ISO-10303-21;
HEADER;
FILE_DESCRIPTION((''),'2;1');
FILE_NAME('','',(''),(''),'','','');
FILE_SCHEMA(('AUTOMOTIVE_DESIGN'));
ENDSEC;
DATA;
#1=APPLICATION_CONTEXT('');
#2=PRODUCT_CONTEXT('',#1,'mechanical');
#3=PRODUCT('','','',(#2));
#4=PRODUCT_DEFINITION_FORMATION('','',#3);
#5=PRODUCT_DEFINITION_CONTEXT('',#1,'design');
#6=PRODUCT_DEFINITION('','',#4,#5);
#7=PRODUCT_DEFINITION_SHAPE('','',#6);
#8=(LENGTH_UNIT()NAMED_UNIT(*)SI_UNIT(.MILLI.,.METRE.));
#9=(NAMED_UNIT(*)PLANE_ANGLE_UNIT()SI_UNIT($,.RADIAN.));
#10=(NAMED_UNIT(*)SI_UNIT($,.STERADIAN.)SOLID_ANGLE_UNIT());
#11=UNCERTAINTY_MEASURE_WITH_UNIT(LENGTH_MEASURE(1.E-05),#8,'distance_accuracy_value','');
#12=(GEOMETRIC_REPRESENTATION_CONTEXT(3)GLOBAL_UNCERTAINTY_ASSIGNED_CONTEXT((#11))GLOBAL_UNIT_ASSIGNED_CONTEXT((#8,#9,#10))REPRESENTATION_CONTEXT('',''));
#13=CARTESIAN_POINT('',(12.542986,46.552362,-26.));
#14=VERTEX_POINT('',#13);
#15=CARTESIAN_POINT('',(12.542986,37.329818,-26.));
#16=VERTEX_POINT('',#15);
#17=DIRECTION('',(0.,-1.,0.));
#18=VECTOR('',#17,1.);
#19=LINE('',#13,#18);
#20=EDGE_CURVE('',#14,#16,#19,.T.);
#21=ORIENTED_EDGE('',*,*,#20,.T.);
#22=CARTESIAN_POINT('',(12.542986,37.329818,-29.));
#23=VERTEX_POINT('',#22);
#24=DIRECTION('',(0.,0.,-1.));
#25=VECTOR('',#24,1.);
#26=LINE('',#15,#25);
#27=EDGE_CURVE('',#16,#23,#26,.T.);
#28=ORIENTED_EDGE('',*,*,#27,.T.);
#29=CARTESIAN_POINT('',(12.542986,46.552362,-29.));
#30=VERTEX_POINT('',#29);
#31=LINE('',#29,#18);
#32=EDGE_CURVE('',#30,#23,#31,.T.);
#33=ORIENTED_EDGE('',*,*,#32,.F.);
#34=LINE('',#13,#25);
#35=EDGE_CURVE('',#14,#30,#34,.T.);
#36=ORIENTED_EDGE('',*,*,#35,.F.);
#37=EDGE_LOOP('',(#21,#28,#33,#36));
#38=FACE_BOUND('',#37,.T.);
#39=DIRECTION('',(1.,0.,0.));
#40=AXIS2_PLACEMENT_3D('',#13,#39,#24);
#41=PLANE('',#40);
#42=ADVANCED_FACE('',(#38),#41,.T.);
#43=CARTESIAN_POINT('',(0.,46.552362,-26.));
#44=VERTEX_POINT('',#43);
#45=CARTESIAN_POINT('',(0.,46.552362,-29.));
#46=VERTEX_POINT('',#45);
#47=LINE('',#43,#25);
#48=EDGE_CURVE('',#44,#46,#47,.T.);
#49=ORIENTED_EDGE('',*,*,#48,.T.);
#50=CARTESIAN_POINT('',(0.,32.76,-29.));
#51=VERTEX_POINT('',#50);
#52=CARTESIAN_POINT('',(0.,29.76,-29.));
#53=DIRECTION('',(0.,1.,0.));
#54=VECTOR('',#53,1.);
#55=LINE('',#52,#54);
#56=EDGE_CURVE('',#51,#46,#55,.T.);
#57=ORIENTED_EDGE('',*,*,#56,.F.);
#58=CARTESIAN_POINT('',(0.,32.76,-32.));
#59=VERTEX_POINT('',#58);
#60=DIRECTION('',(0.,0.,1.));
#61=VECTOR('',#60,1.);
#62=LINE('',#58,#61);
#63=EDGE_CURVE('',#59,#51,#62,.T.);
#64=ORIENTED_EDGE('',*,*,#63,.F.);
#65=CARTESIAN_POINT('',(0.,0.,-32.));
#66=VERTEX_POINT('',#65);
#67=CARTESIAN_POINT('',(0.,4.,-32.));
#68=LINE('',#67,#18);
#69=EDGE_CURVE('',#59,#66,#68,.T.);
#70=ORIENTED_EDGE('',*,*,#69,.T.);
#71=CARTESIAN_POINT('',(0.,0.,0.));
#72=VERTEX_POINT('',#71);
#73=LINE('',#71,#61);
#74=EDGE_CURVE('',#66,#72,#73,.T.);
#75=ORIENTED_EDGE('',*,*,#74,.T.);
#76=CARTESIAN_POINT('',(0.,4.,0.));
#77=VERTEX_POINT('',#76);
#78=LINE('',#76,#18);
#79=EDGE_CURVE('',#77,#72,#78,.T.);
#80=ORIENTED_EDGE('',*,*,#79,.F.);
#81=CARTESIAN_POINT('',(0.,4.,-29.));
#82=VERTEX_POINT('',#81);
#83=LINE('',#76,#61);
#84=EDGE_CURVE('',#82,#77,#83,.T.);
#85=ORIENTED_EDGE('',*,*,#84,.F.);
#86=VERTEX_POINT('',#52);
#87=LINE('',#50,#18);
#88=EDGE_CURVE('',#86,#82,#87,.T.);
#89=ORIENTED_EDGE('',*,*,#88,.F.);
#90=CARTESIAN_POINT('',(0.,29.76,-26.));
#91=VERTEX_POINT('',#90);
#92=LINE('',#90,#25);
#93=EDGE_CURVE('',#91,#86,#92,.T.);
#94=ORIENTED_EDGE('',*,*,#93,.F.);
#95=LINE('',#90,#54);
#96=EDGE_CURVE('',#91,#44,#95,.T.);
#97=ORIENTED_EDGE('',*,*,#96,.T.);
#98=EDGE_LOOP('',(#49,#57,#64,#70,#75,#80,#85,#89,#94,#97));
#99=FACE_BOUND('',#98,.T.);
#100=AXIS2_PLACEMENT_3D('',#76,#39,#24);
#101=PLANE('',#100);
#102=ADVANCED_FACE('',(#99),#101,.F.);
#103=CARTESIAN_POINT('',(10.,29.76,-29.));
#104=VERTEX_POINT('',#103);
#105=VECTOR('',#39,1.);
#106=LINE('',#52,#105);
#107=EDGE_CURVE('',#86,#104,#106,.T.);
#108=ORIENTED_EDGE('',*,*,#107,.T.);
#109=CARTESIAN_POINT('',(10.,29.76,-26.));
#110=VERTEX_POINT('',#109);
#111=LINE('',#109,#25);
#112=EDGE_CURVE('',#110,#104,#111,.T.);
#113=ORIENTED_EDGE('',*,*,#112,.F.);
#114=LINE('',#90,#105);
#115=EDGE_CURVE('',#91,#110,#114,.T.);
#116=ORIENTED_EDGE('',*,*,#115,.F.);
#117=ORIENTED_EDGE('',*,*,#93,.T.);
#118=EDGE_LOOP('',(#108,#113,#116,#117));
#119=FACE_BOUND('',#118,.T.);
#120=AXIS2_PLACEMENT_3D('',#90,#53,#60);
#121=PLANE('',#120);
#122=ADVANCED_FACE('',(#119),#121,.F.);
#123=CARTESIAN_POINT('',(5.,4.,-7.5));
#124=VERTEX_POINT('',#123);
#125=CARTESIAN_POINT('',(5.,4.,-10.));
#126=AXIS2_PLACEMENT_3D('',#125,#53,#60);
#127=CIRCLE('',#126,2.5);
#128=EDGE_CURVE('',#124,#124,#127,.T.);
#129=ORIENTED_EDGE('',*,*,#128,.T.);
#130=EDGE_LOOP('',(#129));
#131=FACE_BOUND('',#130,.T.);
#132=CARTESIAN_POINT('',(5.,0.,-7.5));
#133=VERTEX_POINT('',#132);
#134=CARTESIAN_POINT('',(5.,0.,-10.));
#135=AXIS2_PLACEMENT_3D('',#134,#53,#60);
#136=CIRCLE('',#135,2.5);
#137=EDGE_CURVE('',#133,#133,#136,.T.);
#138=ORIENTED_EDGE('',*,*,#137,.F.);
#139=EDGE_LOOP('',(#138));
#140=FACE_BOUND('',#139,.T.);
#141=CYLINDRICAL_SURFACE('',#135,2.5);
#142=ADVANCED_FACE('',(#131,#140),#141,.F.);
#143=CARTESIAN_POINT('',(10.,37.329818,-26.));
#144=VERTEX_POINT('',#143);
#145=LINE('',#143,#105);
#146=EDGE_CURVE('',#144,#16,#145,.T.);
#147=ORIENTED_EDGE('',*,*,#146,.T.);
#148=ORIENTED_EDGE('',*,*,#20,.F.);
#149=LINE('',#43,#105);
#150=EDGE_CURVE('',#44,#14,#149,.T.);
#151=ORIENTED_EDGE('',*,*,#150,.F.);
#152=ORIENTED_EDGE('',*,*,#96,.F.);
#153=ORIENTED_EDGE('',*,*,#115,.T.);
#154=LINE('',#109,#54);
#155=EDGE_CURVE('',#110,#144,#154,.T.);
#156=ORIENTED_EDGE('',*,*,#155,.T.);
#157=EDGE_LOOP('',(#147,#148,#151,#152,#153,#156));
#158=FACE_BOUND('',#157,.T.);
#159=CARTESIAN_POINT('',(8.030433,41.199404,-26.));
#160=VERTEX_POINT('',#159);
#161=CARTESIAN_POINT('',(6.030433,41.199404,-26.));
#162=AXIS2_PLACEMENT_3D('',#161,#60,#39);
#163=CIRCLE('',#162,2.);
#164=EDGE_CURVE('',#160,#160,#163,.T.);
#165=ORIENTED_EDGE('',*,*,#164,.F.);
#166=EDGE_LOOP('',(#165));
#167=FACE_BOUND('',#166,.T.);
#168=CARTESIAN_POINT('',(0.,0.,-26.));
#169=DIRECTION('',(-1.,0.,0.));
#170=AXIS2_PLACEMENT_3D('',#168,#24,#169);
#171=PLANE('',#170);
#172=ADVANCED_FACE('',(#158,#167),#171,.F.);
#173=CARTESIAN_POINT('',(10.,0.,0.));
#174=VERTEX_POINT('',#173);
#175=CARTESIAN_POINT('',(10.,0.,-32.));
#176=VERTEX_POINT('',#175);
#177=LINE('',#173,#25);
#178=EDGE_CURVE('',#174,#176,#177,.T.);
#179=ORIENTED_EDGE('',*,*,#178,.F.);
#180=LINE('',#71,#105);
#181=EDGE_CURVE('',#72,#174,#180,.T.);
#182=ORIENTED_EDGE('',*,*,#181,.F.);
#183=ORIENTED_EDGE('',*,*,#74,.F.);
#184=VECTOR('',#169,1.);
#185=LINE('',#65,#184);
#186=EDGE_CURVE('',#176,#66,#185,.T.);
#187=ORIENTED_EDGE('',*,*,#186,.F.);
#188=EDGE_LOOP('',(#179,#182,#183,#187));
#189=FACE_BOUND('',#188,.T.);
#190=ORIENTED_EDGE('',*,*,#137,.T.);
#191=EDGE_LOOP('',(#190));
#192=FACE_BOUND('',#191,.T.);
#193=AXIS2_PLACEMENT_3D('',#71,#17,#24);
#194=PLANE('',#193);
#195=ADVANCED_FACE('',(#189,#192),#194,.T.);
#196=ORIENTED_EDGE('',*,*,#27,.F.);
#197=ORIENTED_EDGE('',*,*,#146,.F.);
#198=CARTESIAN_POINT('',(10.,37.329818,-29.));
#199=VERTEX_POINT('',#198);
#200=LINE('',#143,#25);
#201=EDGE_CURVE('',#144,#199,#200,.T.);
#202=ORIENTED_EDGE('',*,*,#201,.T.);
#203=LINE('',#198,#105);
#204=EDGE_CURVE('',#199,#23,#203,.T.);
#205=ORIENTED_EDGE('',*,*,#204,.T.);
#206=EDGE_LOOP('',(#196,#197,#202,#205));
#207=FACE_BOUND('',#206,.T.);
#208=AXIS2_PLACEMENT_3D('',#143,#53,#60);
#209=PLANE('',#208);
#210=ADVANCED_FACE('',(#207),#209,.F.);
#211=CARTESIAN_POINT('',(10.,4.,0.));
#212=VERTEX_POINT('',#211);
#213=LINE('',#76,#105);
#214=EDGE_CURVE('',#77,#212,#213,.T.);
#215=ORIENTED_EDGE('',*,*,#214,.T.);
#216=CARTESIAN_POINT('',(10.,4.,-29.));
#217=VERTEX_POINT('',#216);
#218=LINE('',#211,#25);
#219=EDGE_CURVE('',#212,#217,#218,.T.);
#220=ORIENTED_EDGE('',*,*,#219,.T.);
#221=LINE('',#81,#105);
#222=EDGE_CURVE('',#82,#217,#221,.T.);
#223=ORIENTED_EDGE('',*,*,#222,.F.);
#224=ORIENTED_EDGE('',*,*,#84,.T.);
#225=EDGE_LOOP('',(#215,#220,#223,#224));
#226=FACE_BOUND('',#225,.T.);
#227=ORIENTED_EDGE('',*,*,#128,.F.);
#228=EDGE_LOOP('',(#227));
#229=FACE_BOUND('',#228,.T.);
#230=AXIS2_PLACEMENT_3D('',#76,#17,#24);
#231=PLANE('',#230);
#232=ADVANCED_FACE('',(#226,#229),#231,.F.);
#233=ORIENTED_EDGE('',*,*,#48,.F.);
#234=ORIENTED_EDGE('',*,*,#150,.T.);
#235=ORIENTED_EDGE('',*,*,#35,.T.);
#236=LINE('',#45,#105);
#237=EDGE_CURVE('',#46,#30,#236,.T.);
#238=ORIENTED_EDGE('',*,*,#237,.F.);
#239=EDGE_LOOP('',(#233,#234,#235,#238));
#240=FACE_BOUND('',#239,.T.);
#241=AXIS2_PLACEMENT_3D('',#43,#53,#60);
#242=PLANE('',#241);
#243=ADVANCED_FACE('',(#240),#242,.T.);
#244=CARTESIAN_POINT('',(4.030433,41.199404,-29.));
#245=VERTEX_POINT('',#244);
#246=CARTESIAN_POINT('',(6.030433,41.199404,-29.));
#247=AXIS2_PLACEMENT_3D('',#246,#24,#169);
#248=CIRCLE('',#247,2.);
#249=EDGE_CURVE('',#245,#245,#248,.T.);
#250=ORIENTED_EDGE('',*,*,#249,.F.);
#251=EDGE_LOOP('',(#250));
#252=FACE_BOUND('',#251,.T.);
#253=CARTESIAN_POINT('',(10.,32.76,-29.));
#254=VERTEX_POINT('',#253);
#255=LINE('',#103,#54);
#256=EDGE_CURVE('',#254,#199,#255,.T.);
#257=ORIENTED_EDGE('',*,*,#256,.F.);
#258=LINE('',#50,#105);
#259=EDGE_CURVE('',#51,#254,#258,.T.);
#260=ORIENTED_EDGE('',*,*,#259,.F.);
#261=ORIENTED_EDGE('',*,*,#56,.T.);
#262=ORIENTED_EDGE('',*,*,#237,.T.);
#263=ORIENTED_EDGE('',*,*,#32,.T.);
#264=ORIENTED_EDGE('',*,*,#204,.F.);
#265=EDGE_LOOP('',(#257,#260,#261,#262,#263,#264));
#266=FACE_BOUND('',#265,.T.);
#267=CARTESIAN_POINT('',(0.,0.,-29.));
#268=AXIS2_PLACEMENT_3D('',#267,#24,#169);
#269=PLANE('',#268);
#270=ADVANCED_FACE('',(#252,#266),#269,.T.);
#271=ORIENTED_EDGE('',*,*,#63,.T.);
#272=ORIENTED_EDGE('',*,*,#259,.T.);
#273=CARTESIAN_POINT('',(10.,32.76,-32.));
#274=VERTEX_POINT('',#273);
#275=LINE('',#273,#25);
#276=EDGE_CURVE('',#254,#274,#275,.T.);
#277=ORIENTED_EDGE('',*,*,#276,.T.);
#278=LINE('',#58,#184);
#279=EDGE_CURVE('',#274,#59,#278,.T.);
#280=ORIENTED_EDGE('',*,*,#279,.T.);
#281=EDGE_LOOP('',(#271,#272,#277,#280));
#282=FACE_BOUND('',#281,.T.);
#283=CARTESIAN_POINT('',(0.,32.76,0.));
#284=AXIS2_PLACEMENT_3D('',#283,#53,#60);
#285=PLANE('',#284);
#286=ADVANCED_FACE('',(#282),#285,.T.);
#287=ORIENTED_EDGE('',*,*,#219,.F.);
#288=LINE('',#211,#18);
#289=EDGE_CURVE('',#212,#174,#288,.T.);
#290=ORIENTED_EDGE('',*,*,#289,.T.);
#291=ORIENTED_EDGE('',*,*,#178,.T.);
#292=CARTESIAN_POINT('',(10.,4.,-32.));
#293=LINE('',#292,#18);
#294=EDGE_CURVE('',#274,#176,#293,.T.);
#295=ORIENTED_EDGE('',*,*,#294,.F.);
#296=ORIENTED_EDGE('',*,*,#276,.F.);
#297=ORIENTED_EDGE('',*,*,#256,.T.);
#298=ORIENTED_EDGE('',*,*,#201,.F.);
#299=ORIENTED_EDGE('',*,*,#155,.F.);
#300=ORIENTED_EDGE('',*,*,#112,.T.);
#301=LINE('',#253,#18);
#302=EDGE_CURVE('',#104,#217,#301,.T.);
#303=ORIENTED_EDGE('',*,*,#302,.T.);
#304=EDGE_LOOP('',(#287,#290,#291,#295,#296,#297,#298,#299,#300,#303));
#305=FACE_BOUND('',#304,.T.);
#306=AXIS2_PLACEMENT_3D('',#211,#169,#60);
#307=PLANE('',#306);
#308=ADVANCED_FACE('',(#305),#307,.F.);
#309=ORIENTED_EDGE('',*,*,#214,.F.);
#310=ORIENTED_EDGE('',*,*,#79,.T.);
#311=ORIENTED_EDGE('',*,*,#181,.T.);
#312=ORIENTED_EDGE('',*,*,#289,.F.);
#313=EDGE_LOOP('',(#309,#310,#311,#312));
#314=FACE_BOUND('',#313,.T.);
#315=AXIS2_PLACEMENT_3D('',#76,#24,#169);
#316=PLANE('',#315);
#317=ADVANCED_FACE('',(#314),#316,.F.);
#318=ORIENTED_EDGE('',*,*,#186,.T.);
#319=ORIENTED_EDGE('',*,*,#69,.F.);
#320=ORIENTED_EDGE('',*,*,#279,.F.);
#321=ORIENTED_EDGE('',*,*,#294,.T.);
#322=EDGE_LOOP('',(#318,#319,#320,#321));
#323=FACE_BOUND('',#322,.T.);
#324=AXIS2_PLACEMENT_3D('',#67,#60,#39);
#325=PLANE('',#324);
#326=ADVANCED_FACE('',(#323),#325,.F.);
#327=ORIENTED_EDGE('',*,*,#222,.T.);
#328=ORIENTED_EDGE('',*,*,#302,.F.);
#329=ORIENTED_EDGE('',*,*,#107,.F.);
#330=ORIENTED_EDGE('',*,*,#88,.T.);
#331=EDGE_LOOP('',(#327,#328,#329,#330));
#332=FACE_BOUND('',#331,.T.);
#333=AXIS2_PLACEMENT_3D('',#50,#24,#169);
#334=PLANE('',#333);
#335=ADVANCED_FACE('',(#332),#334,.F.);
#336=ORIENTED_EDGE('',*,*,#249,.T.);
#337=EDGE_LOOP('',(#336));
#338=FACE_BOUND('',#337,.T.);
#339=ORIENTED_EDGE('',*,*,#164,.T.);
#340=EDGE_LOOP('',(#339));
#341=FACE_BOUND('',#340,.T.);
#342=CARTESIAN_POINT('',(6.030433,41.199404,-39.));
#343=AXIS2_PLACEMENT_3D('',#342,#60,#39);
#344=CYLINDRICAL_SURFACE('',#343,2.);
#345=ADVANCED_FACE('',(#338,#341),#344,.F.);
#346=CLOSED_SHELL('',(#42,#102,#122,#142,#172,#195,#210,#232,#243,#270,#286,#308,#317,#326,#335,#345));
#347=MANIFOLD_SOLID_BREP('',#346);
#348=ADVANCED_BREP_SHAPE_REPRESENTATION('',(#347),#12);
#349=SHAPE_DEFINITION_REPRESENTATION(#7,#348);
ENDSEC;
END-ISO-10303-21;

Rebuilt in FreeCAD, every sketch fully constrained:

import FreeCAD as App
import Part
import Sketcher
from FreeCAD import Vector


def add_polygon(sketch, points):
    """Adds a closed chain of lines whose ends are joined by coincident constraints."""
    first, n = sketch.GeometryCount, len(points)
    for a, b in zip(points, points[1:] + points[:1]):
        sketch.addGeometry(Part.LineSegment(App.Vector(*a, 0), App.Vector(*b, 0)), False)
    for i in range(n):
        sketch.addConstraint(Sketcher.Constraint("Coincident", first + i, 2, first + (i + 1) % n, 1))

doc = App.newDocument("Part")
body = doc.addObject("PartDesign::Body", "Body")

sketch1 = body.newObject("Sketcher::SketchObject", "Sketch")
sketch1.AttachmentSupport = (doc.getObject("XZ_Plane"), [""])
sketch1.MapMode = "FlatFace"
add_polygon(sketch1, [(0, -32), (0, 0), (10, 0), (10, -32)])
sketch1.addConstraint([
    Sketcher.Constraint("Vertical", 0),
    Sketcher.Constraint("Horizontal", 1),
    Sketcher.Constraint("Vertical", 2),
    Sketcher.Constraint("Horizontal", 3),
    Sketcher.Constraint("Coincident", 0, 2, -1, 1),
    Sketcher.Constraint("DistanceX", 1, 1, 1, 2, 10.0),
    Sketcher.Constraint("DistanceY", 0, 1, 0, 2, 32.0),
])
pad1 = body.newObject("PartDesign::Pad", "Pad")
pad1.Profile = sketch1
pad1.Length = 4
pad1.Reversed = True

sketch2 = body.newObject("Sketcher::SketchObject", "Sketch001")
sketch2.AttachmentSupport = (doc.getObject("XZ_Plane"), [""])
sketch2.MapMode = "FlatFace"
sketch2.AttachmentOffset = App.Placement(Vector(0, 0, -4), App.Rotation())
sketch2.addGeometry(Part.Circle(Vector(5, -10, 0), Vector(0, 0, 1), 2.5), False)
sketch2.addConstraint([
    Sketcher.Constraint("Diameter", 0, 5.0),
    Sketcher.Constraint("DistanceX", -1, 1, 0, 3, 5.0),
    Sketcher.Constraint("DistanceY", 0, 3, -1, 1, 10.0),
])
pocket1 = body.newObject("PartDesign::Pocket", "Pocket")
pocket1.Profile = sketch2
pocket1.Length = 4
pocket1.Reversed = True

sketch3 = body.newObject("Sketcher::SketchObject", "Sketch002")
sketch3.AttachmentSupport = (doc.getObject("XZ_Plane"), [""])
sketch3.MapMode = "FlatFace"
sketch3.AttachmentOffset = App.Placement(Vector(0, 0, -4), App.Rotation())
add_polygon(sketch3, [(0, -32), (0, -29), (10, -29), (10, -32)])
sketch3.addConstraint([
    Sketcher.Constraint("Vertical", 0),
    Sketcher.Constraint("Horizontal", 1),
    Sketcher.Constraint("Vertical", 2),
    Sketcher.Constraint("Horizontal", 3),
    Sketcher.Constraint("PointOnObject", 0, 2, -2),
    Sketcher.Constraint("DistanceX", 1, 1, 1, 2, 10.0),
    Sketcher.Constraint("DistanceY", 0, 1, 0, 2, 3.0),
    Sketcher.Constraint("DistanceY", 0, 2, -1, 1, 29.0),
])
pad2 = body.newObject("PartDesign::Pad", "Pad001")
pad2.Profile = sketch3
pad2.Length = 28.76
pad2.Reversed = True

sketch4 = body.newObject("Sketcher::SketchObject", "Sketch003")
sketch4.AttachmentSupport = (doc.getObject("XY_Plane"), [""])
sketch4.MapMode = "FlatFace"
sketch4.AttachmentOffset = App.Placement(Vector(0, 0, -29), App.Rotation())
add_polygon(sketch4, [(0, 46.6), (0, 29.8), (10, 29.8), (10, 37.3), (12.5, 37.3), (12.5, 46.6)])
sketch4.addConstraint([
    Sketcher.Constraint("Vertical", 0),
    Sketcher.Constraint("Horizontal", 1),
    Sketcher.Constraint("Vertical", 2),
    Sketcher.Constraint("Horizontal", 3),
    Sketcher.Constraint("Vertical", 4),
    Sketcher.Constraint("Horizontal", 5),
    Sketcher.Constraint("PointOnObject", 0, 2, -2),
    Sketcher.Constraint("DistanceX", 1, 1, 1, 2, 10.0),
    Sketcher.Constraint("DistanceY", -1, 1, 0, 2, 29.76),
    Sketcher.Constraint("DistanceX", 3, 1, 3, 2, 2.542986),
    Sketcher.Constraint("DistanceY", 0, 2, 0, 1, 16.792362),
    Sketcher.Constraint("DistanceY", 2, 1, 2, 2, 7.569818),
])
pad3 = body.newObject("PartDesign::Pad", "Pad002")
pad3.Profile = sketch4
pad3.Length = 3

sketch5 = body.newObject("Sketcher::SketchObject", "Sketch004")
sketch5.AttachmentSupport = (doc.getObject("XY_Plane"), [""])
sketch5.MapMode = "FlatFace"
sketch5.AttachmentOffset = App.Placement(Vector(0, 0, -26), App.Rotation())
sketch5.addGeometry(Part.Circle(Vector(6, 41.2, 0), Vector(0, 0, 1), 2), False)
sketch5.addConstraint([
    Sketcher.Constraint("Diameter", 0, 4.0),
    Sketcher.Constraint("DistanceX", -1, 1, 0, 3, 6.030433),
    Sketcher.Constraint("DistanceY", -1, 1, 0, 3, 41.199404),
])
pocket2 = body.newObject("PartDesign::Pocket", "Pocket001")
pocket2.Profile = sketch5
pocket2.Length = 13

doc.recompute()
